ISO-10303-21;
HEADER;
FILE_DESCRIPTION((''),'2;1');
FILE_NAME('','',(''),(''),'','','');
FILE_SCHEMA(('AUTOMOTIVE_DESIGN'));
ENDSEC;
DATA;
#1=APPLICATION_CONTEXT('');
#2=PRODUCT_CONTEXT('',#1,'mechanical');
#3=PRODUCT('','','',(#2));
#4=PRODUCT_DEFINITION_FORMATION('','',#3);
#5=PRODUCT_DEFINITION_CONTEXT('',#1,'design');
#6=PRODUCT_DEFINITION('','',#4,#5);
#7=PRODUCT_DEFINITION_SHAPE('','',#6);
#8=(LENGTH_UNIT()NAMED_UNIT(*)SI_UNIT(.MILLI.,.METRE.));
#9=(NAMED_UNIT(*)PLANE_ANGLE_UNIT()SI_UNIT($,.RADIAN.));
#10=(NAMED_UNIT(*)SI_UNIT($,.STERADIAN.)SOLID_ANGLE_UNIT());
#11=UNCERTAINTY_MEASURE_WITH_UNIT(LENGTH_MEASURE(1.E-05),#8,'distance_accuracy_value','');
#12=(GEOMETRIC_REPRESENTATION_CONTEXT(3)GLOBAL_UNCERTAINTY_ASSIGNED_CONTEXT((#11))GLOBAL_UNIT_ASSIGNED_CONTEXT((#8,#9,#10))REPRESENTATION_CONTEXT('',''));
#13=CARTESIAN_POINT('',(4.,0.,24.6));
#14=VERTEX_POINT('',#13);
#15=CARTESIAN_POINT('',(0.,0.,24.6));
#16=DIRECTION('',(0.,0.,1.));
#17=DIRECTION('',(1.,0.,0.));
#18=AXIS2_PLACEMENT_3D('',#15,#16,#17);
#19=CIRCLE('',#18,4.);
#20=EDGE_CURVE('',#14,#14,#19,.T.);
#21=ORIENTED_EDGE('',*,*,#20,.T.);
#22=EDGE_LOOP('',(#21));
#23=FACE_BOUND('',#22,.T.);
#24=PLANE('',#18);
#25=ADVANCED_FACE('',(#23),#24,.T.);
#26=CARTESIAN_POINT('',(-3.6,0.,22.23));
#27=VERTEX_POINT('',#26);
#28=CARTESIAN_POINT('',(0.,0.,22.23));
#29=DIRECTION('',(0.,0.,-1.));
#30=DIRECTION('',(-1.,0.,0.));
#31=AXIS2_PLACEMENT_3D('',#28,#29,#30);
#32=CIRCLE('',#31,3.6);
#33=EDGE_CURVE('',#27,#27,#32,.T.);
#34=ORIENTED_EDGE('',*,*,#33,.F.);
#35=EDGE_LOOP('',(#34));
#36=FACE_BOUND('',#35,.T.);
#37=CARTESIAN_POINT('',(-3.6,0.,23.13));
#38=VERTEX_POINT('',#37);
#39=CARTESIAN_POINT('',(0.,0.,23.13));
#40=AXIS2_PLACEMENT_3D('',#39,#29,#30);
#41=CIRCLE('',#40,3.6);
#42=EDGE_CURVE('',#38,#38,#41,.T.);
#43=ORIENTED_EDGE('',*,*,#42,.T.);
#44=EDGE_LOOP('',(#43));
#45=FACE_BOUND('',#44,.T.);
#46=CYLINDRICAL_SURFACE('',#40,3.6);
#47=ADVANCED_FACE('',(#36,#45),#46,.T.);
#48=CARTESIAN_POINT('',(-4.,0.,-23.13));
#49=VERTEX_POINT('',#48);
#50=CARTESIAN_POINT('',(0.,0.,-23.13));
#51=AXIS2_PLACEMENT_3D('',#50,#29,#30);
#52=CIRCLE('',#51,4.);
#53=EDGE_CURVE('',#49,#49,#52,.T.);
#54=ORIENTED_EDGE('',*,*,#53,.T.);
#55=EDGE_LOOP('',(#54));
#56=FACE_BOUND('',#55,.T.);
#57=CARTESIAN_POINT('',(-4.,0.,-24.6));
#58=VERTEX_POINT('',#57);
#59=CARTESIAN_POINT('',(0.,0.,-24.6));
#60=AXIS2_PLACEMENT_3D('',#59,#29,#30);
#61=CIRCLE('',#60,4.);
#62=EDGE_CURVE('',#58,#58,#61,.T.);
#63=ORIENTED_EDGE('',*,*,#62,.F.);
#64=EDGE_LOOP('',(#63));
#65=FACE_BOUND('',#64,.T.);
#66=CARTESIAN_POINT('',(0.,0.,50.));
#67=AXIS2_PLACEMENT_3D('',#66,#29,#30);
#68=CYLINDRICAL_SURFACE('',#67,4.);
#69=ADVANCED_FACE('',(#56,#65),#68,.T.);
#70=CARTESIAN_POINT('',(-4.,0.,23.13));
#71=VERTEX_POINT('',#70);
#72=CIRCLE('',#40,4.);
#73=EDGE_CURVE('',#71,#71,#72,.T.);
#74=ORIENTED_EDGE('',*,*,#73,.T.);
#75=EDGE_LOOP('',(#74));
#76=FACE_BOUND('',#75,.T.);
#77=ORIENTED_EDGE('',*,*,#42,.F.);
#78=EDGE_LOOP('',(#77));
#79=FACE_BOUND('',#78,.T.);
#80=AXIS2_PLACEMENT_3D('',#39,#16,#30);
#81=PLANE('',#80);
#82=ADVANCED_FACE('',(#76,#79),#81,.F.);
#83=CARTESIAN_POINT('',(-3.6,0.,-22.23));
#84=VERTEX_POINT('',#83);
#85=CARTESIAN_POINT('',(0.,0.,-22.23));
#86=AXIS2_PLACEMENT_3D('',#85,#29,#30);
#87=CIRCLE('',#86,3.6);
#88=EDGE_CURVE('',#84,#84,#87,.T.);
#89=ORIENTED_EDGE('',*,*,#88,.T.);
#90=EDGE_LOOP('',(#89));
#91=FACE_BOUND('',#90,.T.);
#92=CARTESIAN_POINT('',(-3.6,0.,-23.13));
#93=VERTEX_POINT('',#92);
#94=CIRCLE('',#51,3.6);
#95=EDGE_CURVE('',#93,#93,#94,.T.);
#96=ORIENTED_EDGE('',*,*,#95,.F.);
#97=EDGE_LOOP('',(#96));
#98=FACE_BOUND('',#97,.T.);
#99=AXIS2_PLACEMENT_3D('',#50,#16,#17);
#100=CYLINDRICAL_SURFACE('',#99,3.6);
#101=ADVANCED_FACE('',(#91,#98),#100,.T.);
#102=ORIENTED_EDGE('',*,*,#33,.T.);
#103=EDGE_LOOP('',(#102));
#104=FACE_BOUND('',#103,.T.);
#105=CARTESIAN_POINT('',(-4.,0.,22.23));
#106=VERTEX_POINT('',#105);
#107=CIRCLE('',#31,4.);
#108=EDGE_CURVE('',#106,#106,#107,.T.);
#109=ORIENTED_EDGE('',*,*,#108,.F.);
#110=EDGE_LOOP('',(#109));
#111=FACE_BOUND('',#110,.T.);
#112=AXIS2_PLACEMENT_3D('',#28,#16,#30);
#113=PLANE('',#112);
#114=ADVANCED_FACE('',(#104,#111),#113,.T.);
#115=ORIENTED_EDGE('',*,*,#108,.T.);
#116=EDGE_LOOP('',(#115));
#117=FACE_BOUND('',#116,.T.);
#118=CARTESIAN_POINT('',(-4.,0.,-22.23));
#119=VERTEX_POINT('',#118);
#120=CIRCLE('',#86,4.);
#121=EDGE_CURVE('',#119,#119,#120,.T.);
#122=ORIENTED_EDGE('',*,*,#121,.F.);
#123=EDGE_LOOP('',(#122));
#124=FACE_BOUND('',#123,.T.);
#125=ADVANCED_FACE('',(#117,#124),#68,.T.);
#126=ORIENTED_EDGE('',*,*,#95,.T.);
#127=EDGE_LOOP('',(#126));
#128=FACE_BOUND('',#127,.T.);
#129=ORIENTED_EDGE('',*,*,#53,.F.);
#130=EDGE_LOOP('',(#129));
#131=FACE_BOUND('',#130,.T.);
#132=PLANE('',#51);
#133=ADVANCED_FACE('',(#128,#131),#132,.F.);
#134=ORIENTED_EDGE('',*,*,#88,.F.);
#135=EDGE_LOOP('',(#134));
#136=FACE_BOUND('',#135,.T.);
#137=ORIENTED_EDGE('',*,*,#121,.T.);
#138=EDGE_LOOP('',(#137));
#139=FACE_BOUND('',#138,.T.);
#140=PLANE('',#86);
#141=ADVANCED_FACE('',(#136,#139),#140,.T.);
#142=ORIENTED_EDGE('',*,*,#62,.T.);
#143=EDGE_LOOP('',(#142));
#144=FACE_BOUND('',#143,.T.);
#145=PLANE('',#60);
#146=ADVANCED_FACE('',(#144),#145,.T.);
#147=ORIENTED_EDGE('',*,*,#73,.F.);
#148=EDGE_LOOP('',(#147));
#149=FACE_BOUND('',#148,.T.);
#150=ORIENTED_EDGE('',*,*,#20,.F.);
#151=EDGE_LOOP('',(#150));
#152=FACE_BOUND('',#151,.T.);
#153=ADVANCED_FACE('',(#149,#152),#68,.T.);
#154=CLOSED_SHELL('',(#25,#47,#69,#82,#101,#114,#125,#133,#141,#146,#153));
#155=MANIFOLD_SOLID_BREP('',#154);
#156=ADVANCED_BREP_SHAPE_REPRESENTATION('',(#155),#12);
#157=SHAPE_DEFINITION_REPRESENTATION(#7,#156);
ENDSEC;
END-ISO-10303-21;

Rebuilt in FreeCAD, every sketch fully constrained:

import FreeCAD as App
import Part
import Sketcher
from FreeCAD import Vector


def edges_at(feature, points):
    """Names of the edges that pass closest to the given points."""
    edges = feature.Shape.Edges
    near = lambda p: min(range(len(edges)), key=lambda i: edges[i].distToShape(Part.Vertex(*p))[0])
    return sorted({f"Edge{near(p) + 1}" for p in points})

doc = App.newDocument("Part")
params = doc.addObject("Spreadsheet::Sheet", "Params")
for row, (alias, value) in enumerate([
    ("sketch1_diameter", "8 mm"),
    ("pad1_length", "50 mm"),
    ("pad1_length2", "50 mm"),
    ("chamfer_size", "0.56 mm"),
    ("pocket1_length", "25.4 mm"),
    ("pocket2_length", "25.4 mm"),
    ("sketch4_diameter", "8 mm"),
    ("sketch4_diameter2", "7.2 mm"),
    ("pocket3_length", "0.9 mm"),
], start=1):
    params.set(f"A{row}", alias)
    params.set(f"B{row}", "=" + value)
    params.setAlias(f"B{row}", alias)

body = doc.addObject("PartDesign::Body", "Body")

# Sketch on XY plane
sketch1 = body.newObject("Sketcher::SketchObject", "Sketch")
sketch1.AttachmentSupport = (doc.getObject("XY_Plane"), [""])
sketch1.MapMode = "FlatFace"
sketch1.addGeometry(Part.Circle(Vector(0, 0, 0), Vector(0, 0, 1), 4), False)
sketch1.addConstraint([
    Sketcher.Constraint("Coincident", 0, 3, -1, 1),
    Sketcher.Constraint("Diameter", 0, 8.0),
])
sketch1.setExpression("Constraints[1]", "Params.sketch1_diameter")
pad1 = body.newObject("PartDesign::Pad", "Pad")
pad1.Profile = sketch1
pad1.Type = "TwoLengths"
pad1.setExpression("Length", "Params.pad1_length")
pad1.setExpression("Length2", "Params.pad1_length2")
doc.recompute()

chamfer = body.newObject("PartDesign::Chamfer", "Chamfer")
chamfer.Base = (pad1, edges_at(pad1, [(-4, 0, -50), (-4, 0, 50)]))
chamfer.setExpression("Size", "Params.chamfer_size")

# Sketch on XY plane
sketch2 = body.newObject("Sketcher::SketchObject", "Sketch001")
sketch2.AttachmentSupport = (doc.getObject("XY_Plane"), [""])
sketch2.MapMode = "FlatFace"
sketch2.AttachmentOffset = App.Placement(Vector(0, 0, 50), App.Rotation())
sketch2.addGeometry(Part.Circle(Vector(0, 0, 0), Vector(0, 0, 1), 8.463045), False)
sketch2.addConstraint([
    Sketcher.Constraint("Coincident", 0, 3, -1, 1),
    Sketcher.Constraint("Diameter", 0, 16.92609),
])
pocket1 = body.newObject("PartDesign::Pocket", "Pocket")
pocket1.Profile = sketch2
pocket1.setExpression("Length", "Params.pocket1_length")

# Sketch on XY plane
sketch3 = body.newObject("Sketcher::SketchObject", "Sketch002")
sketch3.AttachmentSupport = (doc.getObject("XY_Plane"), [""])
sketch3.MapMode = "FlatFace"
sketch3.AttachmentOffset = App.Placement(Vector(0, 0, -50), App.Rotation())
sketch3.addGeometry(Part.Circle(Vector(0, 0, 0), Vector(0, 0, 1), 6.629815), False)
sketch3.addConstraint([
    Sketcher.Constraint("Coincident", 0, 3, -1, 1),
    Sketcher.Constraint("Diameter", 0, 13.25963),
])
pocket2 = body.newObject("PartDesign::Pocket", "Pocket001")
pocket2.Profile = sketch3
pocket2.setExpression("Length", "Params.pocket2_length")
pocket2.Reversed = True

# Sketch on XY plane
sketch4 = body.newObject("Sketcher::SketchObject", "Sketch003")
sketch4.AttachmentSupport = (doc.getObject("XY_Plane"), [""])
sketch4.MapMode = "FlatFace"
sketch4.AttachmentOffset = App.Placement(Vector(0, 0, -23.13), App.Rotation())
sketch4.addGeometry([
    Part.Circle(Vector(0, 0, 0), Vector(0, 0, 1), 4),
    Part.Circle(Vector(0, 0, 0), Vector(0, 0, 1), 3.6),
], False)
sketch4.addConstraint([
    Sketcher.Constraint("Coincident", 0, 3, -1, 1),
    Sketcher.Constraint("Coincident", 1, 3, -1, 1),
    Sketcher.Constraint("Diameter", 0, 8.0),
    Sketcher.Constraint("Diameter", 1, 7.2),
])
sketch4.setExpression("Constraints[2]", "Params.sketch4_diameter")
sketch4.setExpression("Constraints[3]", "Params.sketch4_diameter2")
pocket3 = body.newObject("PartDesign::Pocket", "Pocket002")
pocket3.Profile = sketch4
pocket3.setExpression("Length", "Params.pocket3_length")
pocket3.Reversed = True
doc.recompute()

mirrored = body.newObject("PartDesign::Mirrored", "Mirrored")
mirrored.Originals = [pocket3]
mirrored.MirrorPlane = (doc.getObject("XY_Plane"), [""])
body.Tip = mirrored

doc.recompute()
